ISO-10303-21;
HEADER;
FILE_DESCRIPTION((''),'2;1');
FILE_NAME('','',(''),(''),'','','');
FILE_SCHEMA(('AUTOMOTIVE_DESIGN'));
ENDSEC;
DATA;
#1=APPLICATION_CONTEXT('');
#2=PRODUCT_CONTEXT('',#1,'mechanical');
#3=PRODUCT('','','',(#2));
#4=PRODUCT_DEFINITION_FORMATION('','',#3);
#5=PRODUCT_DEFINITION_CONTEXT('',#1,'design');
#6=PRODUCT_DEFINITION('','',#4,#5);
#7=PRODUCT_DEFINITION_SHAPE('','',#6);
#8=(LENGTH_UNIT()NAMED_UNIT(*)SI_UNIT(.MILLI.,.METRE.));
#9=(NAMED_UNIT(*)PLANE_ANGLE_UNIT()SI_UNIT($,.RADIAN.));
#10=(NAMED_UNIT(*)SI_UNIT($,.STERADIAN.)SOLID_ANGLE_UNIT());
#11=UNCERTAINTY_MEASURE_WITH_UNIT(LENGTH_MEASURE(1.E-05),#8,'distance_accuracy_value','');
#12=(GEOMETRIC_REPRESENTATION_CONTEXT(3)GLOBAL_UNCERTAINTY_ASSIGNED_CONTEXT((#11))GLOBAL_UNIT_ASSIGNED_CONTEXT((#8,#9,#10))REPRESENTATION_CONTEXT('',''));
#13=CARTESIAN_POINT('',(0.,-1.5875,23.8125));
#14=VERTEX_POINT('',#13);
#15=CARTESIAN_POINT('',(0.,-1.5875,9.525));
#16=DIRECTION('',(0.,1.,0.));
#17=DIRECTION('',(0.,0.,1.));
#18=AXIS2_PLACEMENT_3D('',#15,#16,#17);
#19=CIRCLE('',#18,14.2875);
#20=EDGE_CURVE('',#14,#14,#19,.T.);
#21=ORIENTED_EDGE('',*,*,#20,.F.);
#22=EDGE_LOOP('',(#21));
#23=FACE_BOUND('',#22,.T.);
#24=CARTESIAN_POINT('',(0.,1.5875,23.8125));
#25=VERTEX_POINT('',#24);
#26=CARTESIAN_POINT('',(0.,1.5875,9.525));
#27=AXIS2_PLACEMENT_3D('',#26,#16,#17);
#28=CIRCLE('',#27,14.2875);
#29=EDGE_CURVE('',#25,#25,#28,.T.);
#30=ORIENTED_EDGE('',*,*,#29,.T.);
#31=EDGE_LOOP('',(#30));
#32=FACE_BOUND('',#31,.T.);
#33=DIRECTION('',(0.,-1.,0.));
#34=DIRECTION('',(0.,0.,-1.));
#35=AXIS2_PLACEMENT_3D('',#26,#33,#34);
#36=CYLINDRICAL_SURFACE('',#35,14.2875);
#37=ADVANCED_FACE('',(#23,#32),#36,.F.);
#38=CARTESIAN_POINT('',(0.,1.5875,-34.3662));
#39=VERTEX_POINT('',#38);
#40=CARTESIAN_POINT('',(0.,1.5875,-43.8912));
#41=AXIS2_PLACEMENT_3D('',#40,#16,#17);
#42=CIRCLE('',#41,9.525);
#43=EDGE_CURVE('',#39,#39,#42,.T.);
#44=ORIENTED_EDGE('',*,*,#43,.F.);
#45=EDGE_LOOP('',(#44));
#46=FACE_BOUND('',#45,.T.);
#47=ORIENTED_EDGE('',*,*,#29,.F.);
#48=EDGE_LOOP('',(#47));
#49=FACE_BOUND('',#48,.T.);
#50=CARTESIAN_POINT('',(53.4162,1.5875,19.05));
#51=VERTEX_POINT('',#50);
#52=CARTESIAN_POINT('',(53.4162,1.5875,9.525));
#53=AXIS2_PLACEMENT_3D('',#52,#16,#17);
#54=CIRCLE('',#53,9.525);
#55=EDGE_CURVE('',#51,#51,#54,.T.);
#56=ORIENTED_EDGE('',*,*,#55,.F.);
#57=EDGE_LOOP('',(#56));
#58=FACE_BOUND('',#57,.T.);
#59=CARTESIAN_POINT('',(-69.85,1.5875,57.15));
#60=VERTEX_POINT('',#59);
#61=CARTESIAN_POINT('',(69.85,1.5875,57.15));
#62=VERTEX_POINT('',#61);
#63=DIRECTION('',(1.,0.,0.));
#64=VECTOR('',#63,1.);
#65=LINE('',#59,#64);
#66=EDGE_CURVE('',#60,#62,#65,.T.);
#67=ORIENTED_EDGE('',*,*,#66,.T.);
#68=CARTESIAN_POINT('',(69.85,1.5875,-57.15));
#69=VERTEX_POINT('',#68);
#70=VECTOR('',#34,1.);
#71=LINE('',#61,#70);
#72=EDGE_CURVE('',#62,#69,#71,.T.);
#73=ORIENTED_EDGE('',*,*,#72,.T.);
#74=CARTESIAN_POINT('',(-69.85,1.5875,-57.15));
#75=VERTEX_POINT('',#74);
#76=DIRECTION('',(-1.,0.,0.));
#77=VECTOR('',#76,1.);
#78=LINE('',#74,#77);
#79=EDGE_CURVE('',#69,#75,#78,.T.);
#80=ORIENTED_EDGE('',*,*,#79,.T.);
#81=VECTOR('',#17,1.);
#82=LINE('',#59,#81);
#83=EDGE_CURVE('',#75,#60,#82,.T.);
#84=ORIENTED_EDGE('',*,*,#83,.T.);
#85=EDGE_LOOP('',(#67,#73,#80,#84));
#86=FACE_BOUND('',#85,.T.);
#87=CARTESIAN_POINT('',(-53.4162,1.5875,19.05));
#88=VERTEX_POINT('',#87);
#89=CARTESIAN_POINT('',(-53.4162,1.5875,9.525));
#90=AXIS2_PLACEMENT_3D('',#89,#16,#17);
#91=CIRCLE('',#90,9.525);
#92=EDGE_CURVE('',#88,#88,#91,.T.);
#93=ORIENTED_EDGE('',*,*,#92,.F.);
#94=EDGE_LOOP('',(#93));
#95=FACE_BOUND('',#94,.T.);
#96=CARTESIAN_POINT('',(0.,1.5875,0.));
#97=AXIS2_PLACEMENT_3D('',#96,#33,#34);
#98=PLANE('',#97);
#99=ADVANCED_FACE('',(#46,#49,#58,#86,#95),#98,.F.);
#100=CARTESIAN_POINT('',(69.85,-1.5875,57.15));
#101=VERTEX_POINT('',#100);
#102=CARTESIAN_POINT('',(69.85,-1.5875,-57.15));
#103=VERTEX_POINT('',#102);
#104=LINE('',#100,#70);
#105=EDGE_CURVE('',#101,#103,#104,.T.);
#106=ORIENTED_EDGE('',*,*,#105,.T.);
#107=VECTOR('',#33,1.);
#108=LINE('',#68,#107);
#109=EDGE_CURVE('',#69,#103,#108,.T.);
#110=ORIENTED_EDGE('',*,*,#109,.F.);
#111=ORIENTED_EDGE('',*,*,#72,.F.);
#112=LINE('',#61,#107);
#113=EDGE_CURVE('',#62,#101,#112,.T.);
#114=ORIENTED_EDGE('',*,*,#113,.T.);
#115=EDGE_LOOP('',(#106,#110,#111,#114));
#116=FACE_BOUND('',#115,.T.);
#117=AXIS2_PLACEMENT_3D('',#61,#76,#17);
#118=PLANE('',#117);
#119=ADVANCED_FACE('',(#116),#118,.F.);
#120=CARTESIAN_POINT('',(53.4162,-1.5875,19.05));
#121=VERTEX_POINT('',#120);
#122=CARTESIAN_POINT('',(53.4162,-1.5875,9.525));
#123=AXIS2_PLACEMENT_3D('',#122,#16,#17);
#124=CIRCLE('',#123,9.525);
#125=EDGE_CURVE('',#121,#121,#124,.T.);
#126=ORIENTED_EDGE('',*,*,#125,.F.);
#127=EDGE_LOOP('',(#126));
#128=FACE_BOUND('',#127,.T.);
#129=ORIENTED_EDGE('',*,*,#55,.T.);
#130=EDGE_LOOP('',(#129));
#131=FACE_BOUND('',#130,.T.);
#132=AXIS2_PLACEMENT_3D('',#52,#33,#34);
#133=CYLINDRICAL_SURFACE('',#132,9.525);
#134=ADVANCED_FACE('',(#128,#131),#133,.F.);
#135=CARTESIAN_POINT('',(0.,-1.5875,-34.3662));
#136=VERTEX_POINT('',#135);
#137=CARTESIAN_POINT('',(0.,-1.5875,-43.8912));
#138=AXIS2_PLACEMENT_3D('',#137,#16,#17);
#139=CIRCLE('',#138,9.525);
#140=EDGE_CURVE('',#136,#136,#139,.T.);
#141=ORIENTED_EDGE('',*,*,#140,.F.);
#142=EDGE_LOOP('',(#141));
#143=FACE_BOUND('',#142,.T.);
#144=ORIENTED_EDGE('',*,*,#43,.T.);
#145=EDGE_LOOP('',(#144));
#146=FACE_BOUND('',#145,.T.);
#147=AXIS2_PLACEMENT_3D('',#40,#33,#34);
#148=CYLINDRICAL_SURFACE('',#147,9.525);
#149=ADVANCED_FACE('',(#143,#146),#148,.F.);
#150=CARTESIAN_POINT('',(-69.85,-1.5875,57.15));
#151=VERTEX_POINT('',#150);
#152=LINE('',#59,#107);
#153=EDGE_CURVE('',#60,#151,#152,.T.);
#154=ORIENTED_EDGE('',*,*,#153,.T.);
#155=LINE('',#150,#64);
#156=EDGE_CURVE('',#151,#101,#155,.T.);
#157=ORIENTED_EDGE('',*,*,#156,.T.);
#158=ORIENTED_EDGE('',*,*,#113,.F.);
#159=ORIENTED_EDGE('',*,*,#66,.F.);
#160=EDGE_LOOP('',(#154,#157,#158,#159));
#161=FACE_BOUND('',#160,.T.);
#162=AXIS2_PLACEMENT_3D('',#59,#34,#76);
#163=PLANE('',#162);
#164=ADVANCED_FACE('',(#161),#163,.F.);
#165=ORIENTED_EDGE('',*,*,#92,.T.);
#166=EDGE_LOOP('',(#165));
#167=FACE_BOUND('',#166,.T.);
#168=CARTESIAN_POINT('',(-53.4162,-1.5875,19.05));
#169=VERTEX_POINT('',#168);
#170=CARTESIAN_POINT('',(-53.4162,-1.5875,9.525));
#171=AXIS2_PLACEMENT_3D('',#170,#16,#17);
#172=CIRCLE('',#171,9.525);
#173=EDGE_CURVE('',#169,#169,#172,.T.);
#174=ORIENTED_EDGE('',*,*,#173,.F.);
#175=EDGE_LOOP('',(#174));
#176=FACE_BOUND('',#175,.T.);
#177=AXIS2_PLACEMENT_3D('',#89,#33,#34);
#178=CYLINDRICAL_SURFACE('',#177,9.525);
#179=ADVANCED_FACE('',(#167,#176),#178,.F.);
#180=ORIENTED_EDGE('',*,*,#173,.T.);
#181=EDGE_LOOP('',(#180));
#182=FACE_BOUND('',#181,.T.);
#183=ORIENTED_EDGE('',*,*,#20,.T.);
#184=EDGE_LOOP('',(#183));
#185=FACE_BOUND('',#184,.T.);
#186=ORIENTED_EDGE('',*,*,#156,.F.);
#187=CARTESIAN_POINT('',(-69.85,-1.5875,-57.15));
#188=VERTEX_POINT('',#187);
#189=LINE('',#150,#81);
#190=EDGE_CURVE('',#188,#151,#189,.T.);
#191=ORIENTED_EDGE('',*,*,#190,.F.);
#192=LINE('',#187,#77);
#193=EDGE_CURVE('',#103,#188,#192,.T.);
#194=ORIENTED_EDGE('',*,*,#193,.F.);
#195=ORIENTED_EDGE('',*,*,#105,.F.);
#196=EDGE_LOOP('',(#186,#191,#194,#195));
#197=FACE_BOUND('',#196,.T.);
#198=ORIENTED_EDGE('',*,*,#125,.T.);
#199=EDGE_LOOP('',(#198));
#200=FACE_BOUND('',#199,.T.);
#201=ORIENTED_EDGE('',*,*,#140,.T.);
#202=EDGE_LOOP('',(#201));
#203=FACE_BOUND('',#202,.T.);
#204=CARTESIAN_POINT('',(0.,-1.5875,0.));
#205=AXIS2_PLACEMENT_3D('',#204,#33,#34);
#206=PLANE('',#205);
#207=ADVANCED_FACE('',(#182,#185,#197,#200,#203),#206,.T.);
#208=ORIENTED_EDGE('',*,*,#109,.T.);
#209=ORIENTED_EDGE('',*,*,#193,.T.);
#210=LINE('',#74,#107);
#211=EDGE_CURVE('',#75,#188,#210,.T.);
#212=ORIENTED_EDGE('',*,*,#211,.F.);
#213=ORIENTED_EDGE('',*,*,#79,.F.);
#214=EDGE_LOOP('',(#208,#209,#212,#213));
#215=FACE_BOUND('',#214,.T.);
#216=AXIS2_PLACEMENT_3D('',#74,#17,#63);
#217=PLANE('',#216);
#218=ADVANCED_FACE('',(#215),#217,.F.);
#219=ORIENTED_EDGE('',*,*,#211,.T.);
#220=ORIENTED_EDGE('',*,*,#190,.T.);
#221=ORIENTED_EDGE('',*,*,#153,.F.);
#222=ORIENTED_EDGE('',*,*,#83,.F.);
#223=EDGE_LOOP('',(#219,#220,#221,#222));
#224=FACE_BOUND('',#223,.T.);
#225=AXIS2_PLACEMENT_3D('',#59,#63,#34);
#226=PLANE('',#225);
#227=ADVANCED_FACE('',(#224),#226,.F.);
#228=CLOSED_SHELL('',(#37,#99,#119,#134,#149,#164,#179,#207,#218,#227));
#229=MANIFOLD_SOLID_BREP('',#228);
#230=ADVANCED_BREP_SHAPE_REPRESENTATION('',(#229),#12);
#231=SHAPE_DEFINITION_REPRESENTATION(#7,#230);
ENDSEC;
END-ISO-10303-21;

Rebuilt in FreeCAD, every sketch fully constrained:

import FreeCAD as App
import Part
import Sketcher
from FreeCAD import Vector
Q = App.Units.Quantity


def add_polygon(sketch, points):
    """Adds a closed chain of lines whose ends are joined by coincident constraints."""
    first, n = sketch.GeometryCount, len(points)
    for a, b in zip(points, points[1:] + points[:1]):
        sketch.addGeometry(Part.LineSegment(App.Vector(*a, 0), App.Vector(*b, 0)), False)
    for i in range(n):
        sketch.addConstraint(Sketcher.Constraint("Coincident", first + i, 2, first + (i + 1) % n, 1))

doc = App.newDocument("Part")
body = doc.addObject("PartDesign::Body", "Body")

# Sketch on XZ plane
sketch1 = doc.addObject("Sketcher::SketchObject", "Sketch")
body.addObject(sketch1)
sketch1.AttachmentSupport = (doc.XZ_Plane, [""])
sketch1.MapMode = "FlatFace"
add_polygon(sketch1, [(-69.85, -57.15), (-69.85, 57.15), (69.85, 57.15), (69.85, -57.15)])  # lines 0-3
sketch1.addGeometry(Part.Circle(Vector(-53.4162, 9.525, 0), Vector(0, 0, 1), 9.525), False)  # 4
sketch1.addGeometry(Part.Circle(Vector(0, 9.525, 0), Vector(0, 0, 1), 14.2875), False)  # 5
sketch1.addGeometry(Part.Circle(Vector(53.4162, 9.525, 0), Vector(0, 0, 1), 9.525), False)  # 6
sketch1.addGeometry(Part.Circle(Vector(0, -43.8912, 0), Vector(0, 0, 1), 9.525), False)  # 7
sketch1.addConstraint(Sketcher.Constraint("Vertical", 0))
sketch1.addConstraint(Sketcher.Constraint("Horizontal", 1))
sketch1.addConstraint(Sketcher.Constraint("Vertical", 2))
sketch1.addConstraint(Sketcher.Constraint("Horizontal", 3))
sketch1.addConstraint(Sketcher.Constraint("Equal", 4, 6))
sketch1.addConstraint(Sketcher.Constraint("Equal", 6, 7))
sketch1.addConstraint(Sketcher.Constraint("Symmetric", 0, 2, 2, 2, -1, 1))
sketch1.addConstraint(Sketcher.Constraint("Symmetric", 4, 3, 6, 3, -2))
sketch1.addConstraint(Sketcher.Constraint("PointOnObject", 5, 3, -2))
sketch1.addConstraint(Sketcher.Constraint("PointOnObject", 7, 3, -2))
sketch1.addConstraint(Sketcher.Constraint("Horizontal", 4, 3, 5, 3))
sketch1.addConstraint(Sketcher.Constraint("Diameter", 4, Q("0.75 in")))
sketch1.addConstraint(Sketcher.Constraint("Diameter", 5, Q("1.125 in")))
sketch1.addConstraint(Sketcher.Constraint("DistanceX", 1, 1, 1, 2, Q("5.5 in")))
sketch1.addConstraint(Sketcher.Constraint("DistanceY", 0, 1, 0, 2, Q("4.5 in")))
sketch1.addConstraint(Sketcher.Constraint("DistanceX", 4, 3, -1, 1, Q("2.103 in")))
sketch1.addConstraint(Sketcher.Constraint("DistanceY", -1, 1, 4, 3, Q("0.375 in")))
sketch1.addConstraint(Sketcher.Constraint("DistanceY", 7, 3, -1, 1, Q("1.728 in")))
pad1 = doc.addObject("PartDesign::Pad", "Pad")
body.addObject(pad1)
pad1.Profile = sketch1
pad1.Length = Q("0.125 in")
pad1.Midplane = True

doc.recompute()
